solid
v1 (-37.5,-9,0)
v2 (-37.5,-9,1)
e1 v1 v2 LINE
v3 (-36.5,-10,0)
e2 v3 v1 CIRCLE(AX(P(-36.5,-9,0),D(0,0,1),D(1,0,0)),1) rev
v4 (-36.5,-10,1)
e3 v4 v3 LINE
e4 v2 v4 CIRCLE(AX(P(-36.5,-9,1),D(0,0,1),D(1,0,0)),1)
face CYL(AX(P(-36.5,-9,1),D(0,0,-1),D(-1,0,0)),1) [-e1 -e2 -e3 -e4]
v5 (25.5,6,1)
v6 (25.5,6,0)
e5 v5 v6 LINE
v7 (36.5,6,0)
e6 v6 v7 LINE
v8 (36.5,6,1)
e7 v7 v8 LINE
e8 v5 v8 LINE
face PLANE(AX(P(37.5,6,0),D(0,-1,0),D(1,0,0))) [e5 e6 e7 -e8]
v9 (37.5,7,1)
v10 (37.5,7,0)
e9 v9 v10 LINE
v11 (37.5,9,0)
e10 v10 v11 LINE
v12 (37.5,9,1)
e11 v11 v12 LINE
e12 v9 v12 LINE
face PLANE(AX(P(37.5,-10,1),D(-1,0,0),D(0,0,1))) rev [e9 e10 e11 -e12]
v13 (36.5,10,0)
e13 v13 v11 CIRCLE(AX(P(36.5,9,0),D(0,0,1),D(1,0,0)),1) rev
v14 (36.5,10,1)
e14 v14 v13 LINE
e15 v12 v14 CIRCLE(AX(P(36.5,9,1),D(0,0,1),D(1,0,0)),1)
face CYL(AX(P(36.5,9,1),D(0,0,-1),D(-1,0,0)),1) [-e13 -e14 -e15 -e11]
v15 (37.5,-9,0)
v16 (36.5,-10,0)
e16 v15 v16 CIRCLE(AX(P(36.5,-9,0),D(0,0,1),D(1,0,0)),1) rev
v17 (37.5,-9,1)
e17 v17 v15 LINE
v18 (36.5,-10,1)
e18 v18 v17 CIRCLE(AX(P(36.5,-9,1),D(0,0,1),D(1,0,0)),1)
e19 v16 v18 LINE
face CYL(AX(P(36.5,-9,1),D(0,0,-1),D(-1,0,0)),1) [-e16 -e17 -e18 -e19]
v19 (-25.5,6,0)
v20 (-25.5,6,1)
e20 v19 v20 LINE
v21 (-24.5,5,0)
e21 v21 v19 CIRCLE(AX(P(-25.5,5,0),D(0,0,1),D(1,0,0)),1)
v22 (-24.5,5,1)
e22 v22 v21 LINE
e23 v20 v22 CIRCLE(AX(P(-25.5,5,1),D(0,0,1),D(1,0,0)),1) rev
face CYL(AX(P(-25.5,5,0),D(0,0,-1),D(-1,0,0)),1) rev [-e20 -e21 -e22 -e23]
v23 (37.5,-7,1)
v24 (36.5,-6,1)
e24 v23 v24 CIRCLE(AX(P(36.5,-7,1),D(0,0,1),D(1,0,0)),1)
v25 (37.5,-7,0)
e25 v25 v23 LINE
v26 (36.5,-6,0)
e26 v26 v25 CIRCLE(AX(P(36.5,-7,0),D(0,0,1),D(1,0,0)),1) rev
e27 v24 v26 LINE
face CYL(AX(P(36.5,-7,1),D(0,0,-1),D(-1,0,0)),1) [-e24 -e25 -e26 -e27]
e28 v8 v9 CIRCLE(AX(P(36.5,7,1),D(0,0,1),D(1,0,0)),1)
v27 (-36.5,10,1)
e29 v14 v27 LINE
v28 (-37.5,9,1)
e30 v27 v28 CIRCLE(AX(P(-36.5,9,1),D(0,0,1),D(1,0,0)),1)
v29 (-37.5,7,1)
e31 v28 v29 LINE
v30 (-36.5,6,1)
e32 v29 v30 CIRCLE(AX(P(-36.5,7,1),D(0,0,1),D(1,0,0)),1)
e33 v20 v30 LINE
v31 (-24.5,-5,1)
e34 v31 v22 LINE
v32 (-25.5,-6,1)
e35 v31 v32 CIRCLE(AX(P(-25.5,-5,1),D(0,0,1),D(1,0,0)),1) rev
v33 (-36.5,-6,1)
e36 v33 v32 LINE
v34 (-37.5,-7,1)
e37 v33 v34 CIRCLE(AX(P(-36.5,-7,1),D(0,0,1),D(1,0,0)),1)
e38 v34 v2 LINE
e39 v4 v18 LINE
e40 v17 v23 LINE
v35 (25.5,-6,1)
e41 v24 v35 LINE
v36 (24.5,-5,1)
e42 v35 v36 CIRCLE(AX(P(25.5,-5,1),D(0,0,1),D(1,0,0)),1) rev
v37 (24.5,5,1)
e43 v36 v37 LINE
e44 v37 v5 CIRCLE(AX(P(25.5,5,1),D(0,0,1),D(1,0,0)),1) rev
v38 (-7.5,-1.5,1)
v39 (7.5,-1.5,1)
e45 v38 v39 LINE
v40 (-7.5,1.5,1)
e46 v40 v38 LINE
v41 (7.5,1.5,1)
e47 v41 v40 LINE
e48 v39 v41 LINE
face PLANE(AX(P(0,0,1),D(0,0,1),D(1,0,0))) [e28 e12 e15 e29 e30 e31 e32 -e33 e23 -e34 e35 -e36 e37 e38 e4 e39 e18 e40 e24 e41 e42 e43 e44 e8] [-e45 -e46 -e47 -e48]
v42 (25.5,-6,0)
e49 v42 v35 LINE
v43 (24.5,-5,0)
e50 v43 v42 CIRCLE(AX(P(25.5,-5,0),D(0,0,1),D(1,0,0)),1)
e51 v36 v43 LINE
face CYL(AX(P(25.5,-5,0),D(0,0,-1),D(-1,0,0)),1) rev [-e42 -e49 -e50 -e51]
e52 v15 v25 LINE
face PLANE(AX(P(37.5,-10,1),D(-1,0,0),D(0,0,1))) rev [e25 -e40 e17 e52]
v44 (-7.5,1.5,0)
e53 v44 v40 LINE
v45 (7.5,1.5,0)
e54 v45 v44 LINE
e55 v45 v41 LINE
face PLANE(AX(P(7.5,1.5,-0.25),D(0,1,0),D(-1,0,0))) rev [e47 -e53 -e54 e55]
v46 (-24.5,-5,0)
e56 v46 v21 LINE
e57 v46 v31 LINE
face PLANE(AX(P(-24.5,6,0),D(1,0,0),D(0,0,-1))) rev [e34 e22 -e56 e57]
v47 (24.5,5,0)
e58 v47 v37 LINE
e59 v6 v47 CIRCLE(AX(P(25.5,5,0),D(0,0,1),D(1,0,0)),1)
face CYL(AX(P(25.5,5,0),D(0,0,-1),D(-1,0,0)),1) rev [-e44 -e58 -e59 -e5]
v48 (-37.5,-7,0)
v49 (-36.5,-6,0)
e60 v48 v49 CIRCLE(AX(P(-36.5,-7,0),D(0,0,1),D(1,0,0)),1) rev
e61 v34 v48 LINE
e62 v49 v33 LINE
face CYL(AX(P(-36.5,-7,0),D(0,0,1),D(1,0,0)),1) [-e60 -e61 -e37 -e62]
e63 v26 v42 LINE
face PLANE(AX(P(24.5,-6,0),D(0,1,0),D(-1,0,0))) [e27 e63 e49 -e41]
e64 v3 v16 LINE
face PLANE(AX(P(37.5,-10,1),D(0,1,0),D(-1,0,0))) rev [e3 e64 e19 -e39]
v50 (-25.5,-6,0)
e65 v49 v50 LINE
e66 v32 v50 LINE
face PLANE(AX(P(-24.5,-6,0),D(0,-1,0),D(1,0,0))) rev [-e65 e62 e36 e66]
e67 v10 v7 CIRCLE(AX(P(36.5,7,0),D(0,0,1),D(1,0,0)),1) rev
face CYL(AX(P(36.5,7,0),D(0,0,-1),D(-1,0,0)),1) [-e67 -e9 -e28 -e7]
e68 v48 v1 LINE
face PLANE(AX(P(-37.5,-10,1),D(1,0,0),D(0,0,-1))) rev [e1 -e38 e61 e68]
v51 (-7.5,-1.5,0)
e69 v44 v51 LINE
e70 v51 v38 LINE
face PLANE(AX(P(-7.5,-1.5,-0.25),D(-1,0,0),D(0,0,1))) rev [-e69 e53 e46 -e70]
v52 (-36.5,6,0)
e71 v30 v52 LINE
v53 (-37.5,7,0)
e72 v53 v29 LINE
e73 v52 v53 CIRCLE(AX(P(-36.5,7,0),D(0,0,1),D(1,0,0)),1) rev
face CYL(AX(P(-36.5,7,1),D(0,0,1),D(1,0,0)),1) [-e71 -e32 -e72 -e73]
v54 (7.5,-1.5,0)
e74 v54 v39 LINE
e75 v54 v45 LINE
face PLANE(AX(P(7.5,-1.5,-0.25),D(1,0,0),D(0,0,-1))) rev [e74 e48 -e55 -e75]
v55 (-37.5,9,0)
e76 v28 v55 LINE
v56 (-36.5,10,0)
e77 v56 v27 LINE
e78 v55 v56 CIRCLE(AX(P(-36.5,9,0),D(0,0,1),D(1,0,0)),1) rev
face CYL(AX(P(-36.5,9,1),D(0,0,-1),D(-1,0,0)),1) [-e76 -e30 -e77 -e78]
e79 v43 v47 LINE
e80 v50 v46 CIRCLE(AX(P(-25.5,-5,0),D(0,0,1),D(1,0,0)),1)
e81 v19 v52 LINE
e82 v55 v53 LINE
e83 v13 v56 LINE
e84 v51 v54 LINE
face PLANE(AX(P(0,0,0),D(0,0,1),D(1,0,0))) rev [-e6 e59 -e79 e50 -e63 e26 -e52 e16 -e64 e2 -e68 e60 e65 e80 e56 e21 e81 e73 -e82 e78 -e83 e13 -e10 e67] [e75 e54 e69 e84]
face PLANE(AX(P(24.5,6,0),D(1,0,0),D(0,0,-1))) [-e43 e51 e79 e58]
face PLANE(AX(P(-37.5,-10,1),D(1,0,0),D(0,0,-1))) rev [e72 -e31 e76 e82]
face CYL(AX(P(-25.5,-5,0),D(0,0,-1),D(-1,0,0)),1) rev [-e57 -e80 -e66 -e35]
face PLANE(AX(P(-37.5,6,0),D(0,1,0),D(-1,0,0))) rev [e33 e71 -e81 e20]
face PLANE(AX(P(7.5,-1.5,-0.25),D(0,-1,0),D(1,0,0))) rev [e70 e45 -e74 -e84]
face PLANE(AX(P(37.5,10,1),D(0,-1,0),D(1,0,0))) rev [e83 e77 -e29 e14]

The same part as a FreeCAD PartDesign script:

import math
import FreeCAD as App
import Part
import Sketcher

V = App.Vector
Q = App.Units.Quantity


def edges_at(feature, points):
    """Names of the edges that pass closest to the given points."""
    edges = feature.Shape.Edges
    near = lambda p: min(range(len(edges)), key=lambda i: edges[i].distToShape(Part.Vertex(*p))[0])
    return sorted({f"Edge{near(p) + 1}" for p in points})


def add_polygon(sketch, points):
    """Adds a closed chain of lines whose ends are joined by coincident constraints."""
    first, n = sketch.GeometryCount, len(points)
    for a, b in zip(points, points[1:] + points[:1]):
        sketch.addGeometry(Part.LineSegment(App.Vector(*a, 0), App.Vector(*b, 0)), False)
    for i in range(n):
        sketch.addConstraint(Sketcher.Constraint("Coincident", first + i, 2, first + (i + 1) % n, 1))

doc = App.newDocument("Part")
body = doc.addObject("PartDesign::Body", "Body")

sketch1 = body.newObject("Sketcher::SketchObject", "Sketch")
sketch1.AttachmentSupport = (doc.getObject("XY_Plane"), [""])
sketch1.MapMode = "FlatFace"
add_polygon(sketch1, [(-38, 10), (-38, -10), (38, -10), (38, 10)])
sketch1.addConstraint(Sketcher.Constraint("Vertical", 0))
sketch1.addConstraint(Sketcher.Constraint("Horizontal", 1))
sketch1.addConstraint(Sketcher.Constraint("Vertical", 2))
sketch1.addConstraint(Sketcher.Constraint("Horizontal", 3))
sketch1.addConstraint(Sketcher.Constraint("Symmetric", 0, 2, 2, 2, -1, 1))
sketch1.addConstraint(Sketcher.Constraint("DistanceX", 1, 1, 1, 2, Q("75 mm")))
sketch1.addConstraint(Sketcher.Constraint("DistanceY", 0, 2, 0, 1, Q("20 mm")))
pad1 = body.newObject("PartDesign::Pad", "Pad")
pad1.Profile = sketch1
pad1.Length = 1

sketch2 = body.newObject("Sketcher::SketchObject", "Sketch001")
sketch2.AttachmentSupport = (doc.getObject("XY_Plane"), [""])
sketch2.MapMode = "FlatFace"
sketch2.AttachmentOffset = App.Placement(V(0, 0, 1), App.Rotation())
sketch2.addGeometry(Part.LineSegment(V(-24, 6, 0), V(-38, 6, 0)), False)
sketch2.addGeometry(Part.ArcOfCircle(Part.Circle(V(-38, 0, 0), V(0, 0, 1), 6), math.radians(90), math.radians(270)), False)
sketch2.addGeometry(Part.LineSegment(V(-38, -6, 0), V(-24, -6, 0)), False)
sketch2.addGeometry(Part.LineSegment(V(-24, -6, 0), V(-24, 6, 0)), False)
sketch2.addConstraint(Sketcher.Constraint("Tangent", 0, 2, 1, 1))
sketch2.addConstraint(Sketcher.Constraint("Tangent", 1, 2, 2, 1))
sketch2.addConstraint(Sketcher.Constraint("Coincident", 2, 2, 3, 1))
sketch2.addConstraint(Sketcher.Constraint("Coincident", 3, 2, 0, 1))
sketch2.addConstraint(Sketcher.Constraint("Horizontal", 0))
sketch2.addConstraint(Sketcher.Constraint("Horizontal", 2))
sketch2.addConstraint(Sketcher.Constraint("Vertical", 3))
sketch2.addConstraint(Sketcher.Constraint("PointOnObject", 1, 3, -1))
sketch2.addConstraint(Sketcher.Constraint("Radius", 1, Q("6 mm")))
sketch2.addConstraint(Sketcher.Constraint("DistanceX", 0, 2, 0, 1, Q("13 mm")))
sketch2.addConstraint(Sketcher.Constraint("DistanceX", 1, 3, -1, 1, Q("37.5 mm")))
pocket1 = body.newObject("PartDesign::Pocket", "Pocket")
pocket1.Profile = sketch2
pocket1.Type = "ThroughAll"
doc.recompute()

fillet = body.newObject("PartDesign::Fillet", "Fillet")
fillet.Base = (pocket1, edges_at(pocket1, [
    (-37.5, -6, 0.5),
    (-37.5, 6, 0.5),
    (-24.5, 6, 0.5),
    (-24.5, -6, 0.5),
    (-37.5, 10, 0.5),
    (-37.5, -10, 0.5),
]))
fillet.Radius = 1
doc.recompute()

mirrored = body.newObject("PartDesign::Mirrored", "Mirrored")
mirrored.Originals = [pocket1]
mirrored.MirrorPlane = (doc.getObject("YZ_Plane"), [""])
body.Tip = mirrored
doc.recompute()

fillet2 = body.newObject("PartDesign::Fillet", "Fillet001")
fillet2.Base = (mirrored, edges_at(mirrored, [
    (37.5, 6, 0.5),
    (37.5, -6, 0.5),
    (24.5, -6, 0.5),
    (24.5, 6, 0.5),
    (37.5, 10, 0.5),
    (37.5, -10, 0.5),
]))
fillet2.Radius = 1

sketch3 = body.newObject("Sketcher::SketchObject", "Sketch002")
sketch3.AttachmentSupport = (doc.getObject("XY_Plane"), [""])
sketch3.MapMode = "FlatFace"
sketch3.AttachmentOffset = App.Placement(V(0, 0, 1), App.Rotation())
add_polygon(sketch3, [(-7.5, 1.5), (-7.5, -1.5), (7.5, -1.5), (7.5, 1.5)])
sketch3.addConstraint(Sketcher.Constraint("Vertical", 0))
sketch3.addConstraint(Sketcher.Constraint("Horizontal", 1))
sketch3.addConstraint(Sketcher.Constraint("Vertical", 2))
sketch3.addConstraint(Sketcher.Constraint("Horizontal", 3))
sketch3.addConstraint(Sketcher.Constraint("Symmetric", 0, 2, 2, 2, -1, 1))
sketch3.addConstraint(Sketcher.Constraint("DistanceX", 1, 1, 1, 2, Q("15 mm")))
sketch3.addConstraint(Sketcher.Constraint("DistanceY", 0, 2, 0, 1, Q("3 mm")))
pocket2 = body.newObject("PartDesign::Pocket", "Pocket001")
pocket2.Profile = sketch3
pocket2.Length = 1.25

doc.recompute()
